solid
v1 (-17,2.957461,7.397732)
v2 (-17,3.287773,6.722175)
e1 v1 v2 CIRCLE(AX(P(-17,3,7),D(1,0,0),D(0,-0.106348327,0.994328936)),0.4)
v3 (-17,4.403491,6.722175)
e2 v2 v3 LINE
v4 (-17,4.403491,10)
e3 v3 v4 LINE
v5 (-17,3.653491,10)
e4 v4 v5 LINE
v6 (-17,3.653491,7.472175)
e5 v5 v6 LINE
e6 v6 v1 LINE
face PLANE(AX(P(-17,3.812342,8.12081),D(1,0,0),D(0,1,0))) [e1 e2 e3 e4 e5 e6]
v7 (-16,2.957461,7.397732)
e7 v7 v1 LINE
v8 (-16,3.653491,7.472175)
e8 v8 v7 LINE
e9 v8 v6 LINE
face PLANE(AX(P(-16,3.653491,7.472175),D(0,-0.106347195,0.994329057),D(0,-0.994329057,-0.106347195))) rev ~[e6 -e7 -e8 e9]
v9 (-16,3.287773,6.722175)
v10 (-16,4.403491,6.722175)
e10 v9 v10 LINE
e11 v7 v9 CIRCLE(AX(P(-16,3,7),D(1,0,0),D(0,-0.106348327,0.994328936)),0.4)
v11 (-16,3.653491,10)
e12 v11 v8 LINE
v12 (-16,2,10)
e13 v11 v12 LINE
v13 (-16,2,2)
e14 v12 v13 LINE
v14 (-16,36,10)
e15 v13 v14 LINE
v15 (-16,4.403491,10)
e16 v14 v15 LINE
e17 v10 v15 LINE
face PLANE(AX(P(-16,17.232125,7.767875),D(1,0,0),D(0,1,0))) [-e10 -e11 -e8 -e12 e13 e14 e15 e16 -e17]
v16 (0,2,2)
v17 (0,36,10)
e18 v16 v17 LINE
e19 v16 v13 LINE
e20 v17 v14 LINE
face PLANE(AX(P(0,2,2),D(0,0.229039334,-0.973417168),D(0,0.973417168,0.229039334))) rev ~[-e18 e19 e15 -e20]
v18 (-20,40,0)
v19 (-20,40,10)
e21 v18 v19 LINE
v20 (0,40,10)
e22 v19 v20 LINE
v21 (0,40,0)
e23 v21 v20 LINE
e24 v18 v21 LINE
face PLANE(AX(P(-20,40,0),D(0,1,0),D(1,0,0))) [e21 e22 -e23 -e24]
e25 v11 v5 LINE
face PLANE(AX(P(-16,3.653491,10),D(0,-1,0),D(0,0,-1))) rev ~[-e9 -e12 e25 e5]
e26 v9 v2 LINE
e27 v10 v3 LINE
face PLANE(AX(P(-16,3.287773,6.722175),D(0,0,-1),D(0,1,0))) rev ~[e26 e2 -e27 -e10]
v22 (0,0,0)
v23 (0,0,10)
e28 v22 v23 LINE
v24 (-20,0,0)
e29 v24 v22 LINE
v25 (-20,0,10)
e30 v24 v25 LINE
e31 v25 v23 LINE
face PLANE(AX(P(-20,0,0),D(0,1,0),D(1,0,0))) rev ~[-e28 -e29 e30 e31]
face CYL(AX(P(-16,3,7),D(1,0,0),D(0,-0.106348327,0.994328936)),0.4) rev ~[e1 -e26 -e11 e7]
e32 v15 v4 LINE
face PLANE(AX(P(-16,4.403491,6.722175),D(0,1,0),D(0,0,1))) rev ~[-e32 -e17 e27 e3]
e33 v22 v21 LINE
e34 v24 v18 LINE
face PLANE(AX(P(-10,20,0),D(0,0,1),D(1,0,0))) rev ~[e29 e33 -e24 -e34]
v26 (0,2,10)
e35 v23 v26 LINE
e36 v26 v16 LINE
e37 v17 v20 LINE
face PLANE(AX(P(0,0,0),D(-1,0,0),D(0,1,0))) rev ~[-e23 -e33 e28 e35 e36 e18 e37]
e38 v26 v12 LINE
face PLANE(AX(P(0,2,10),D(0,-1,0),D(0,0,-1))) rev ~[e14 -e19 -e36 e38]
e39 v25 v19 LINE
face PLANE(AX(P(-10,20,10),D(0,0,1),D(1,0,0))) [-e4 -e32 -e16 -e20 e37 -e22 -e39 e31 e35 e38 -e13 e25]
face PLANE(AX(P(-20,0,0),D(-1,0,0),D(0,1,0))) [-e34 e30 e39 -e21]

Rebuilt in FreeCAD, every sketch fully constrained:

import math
import FreeCAD as App
import Part
import Sketcher


def add_polygon(sketch, points):
    """Adds a closed chain of lines whose ends are joined by coincident constraints."""
    first, n = sketch.GeometryCount, len(points)
    for a, b in zip(points, points[1:] + points[:1]):
        sketch.addGeometry(Part.LineSegment(App.Vector(*a, 0), App.Vector(*b, 0)), False)
    for i in range(n):
        sketch.addConstraint(Sketcher.Constraint("Coincident", first + i, 2, first + (i + 1) % n, 1))

doc = App.newDocument("Part")
body = doc.addObject("PartDesign::Body", "Body")

# Sketch on XY plane
sketch1 = body.newObject("Sketcher::SketchObject", "Sketch")
sketch1.AttachmentSupport = (doc.getObject("XY_Plane"), [""])
sketch1.MapMode = "FlatFace"
add_polygon(sketch1, [(-20, 40), (-20, 0), (0, 0), (0, 40)])  # lines 0-3
sketch1.addConstraint(Sketcher.Constraint("Vertical", 0))
sketch1.addConstraint(Sketcher.Constraint("Horizontal", 1))
sketch1.addConstraint(Sketcher.Constraint("Vertical", 2))
sketch1.addConstraint(Sketcher.Constraint("Horizontal", 3))
sketch1.addConstraint(Sketcher.Constraint("Coincident", 1, 2, -1, 1))
sketch1.addConstraint(Sketcher.Constraint("DistanceX", 1, 1, 1, 2, 20.0))
sketch1.addConstraint(Sketcher.Constraint("DistanceY", 0, 2, 0, 1, 40.0))
pad1 = body.newObject("PartDesign::Pad", "Pad")
pad1.Profile = sketch1
pad1.Length = 10

# Sketch on YZ plane
sketch2 = body.newObject("Sketcher::SketchObject", "Sketch001")
sketch2.AttachmentSupport = (doc.getObject("YZ_Plane"), [""])
sketch2.MapMode = "FlatFace"
add_polygon(sketch2, [(2, 2), (36, 10), (2, 10)])  # lines 0-2
sketch2.addConstraint(Sketcher.Constraint("Horizontal", 1))
sketch2.addConstraint(Sketcher.Constraint("Vertical", 2))
sketch2.addConstraint(Sketcher.Constraint("DistanceX", 1, 2, 1, 1, 34.0))
sketch2.addConstraint(Sketcher.Constraint("DistanceY", 2, 2, 2, 1, 8.0))
sketch2.addConstraint(Sketcher.Constraint("DistanceX", -1, 1, 0, 2, 36.0))
sketch2.addConstraint(Sketcher.Constraint("DistanceY", -1, 1, 0, 2, 10.0))
pocket1 = body.newObject("PartDesign::Pocket", "Pocket")
pocket1.Profile = sketch2
pocket1.Length = 16

# Sketch on YZ plane
sketch3 = body.newObject("Sketcher::SketchObject", "Sketch002")
sketch3.AttachmentSupport = (doc.getObject("YZ_Plane"), [""])
sketch3.MapMode = "FlatFace"
sketch3.AttachmentOffset = App.Placement(App.Vector(0, 0, -16), App.Rotation())
sketch3.addGeometry(Part.LineSegment(App.Vector(4.403491, 10, 0), App.Vector(3.653491, 10, 0)), False)
sketch3.addGeometry(Part.LineSegment(App.Vector(3.653491, 10, 0), App.Vector(3.653491, 7.472175, 0)), False)
sketch3.addGeometry(Part.LineSegment(App.Vector(3.653491, 7.472175, 0), App.Vector(2.957461, 7.397732, 0)), False)
sketch3.addGeometry(Part.ArcOfCircle(Part.Circle(App.Vector(3, 7, 0), App.Vector(0, 0, 1), 0.4), math.radians(96.104855), math.radians(316.007569)), False)
sketch3.addGeometry(Part.LineSegment(App.Vector(3.287773, 6.722175, 0), App.Vector(4.403491, 6.722175, 0)), False)
sketch3.addGeometry(Part.LineSegment(App.Vector(4.403491, 6.722175, 0), App.Vector(4.403491, 10, 0)), False)
sketch3.addConstraint(Sketcher.Constraint("Coincident", 0, 2, 1, 1))
sketch3.addConstraint(Sketcher.Constraint("Coincident", 1, 2, 2, 1))
sketch3.addConstraint(Sketcher.Constraint("Tangent", 2, 2, 3, 1))
sketch3.addConstraint(Sketcher.Constraint("Coincident", 3, 2, 4, 1))
sketch3.addConstraint(Sketcher.Constraint("Coincident", 4, 2, 5, 1))
sketch3.addConstraint(Sketcher.Constraint("Coincident", 5, 2, 0, 1))
sketch3.addConstraint(Sketcher.Constraint("Horizontal", 0))
sketch3.addConstraint(Sketcher.Constraint("Vertical", 1))
sketch3.addConstraint(Sketcher.Constraint("Horizontal", 4))
sketch3.addConstraint(Sketcher.Constraint("Vertical", 5))
sketch3.addConstraint(Sketcher.Constraint("Radius", 3, 0.4))
sketch3.addConstraint(Sketcher.Constraint("DistanceX", -1, 1, 3, 3, 3.0))
sketch3.addConstraint(Sketcher.Constraint("DistanceY", -1, 1, 3, 3, 7.0))
sketch3.addConstraint(Sketcher.Constraint("DistanceY", -1, 1, 0, 2, 10.0))
sketch3.addConstraint(Sketcher.Constraint("Distance", 2, 0.7))
sketch3.addConstraint(Sketcher.Constraint("DistanceX", 0, 2, 0, 1, 0.75))
sketch3.addConstraint(Sketcher.Constraint("DistanceY", 3, 2, 1, 2, 0.75))
sketch3.addConstraint(Sketcher.Constraint("DistanceX", 4, 1, 4, 2, 1.115718))
pocket2 = body.newObject("PartDesign::Pocket", "Pocket001")
pocket2.Profile = sketch3
pocket2.Length = 1

doc.recompute()
